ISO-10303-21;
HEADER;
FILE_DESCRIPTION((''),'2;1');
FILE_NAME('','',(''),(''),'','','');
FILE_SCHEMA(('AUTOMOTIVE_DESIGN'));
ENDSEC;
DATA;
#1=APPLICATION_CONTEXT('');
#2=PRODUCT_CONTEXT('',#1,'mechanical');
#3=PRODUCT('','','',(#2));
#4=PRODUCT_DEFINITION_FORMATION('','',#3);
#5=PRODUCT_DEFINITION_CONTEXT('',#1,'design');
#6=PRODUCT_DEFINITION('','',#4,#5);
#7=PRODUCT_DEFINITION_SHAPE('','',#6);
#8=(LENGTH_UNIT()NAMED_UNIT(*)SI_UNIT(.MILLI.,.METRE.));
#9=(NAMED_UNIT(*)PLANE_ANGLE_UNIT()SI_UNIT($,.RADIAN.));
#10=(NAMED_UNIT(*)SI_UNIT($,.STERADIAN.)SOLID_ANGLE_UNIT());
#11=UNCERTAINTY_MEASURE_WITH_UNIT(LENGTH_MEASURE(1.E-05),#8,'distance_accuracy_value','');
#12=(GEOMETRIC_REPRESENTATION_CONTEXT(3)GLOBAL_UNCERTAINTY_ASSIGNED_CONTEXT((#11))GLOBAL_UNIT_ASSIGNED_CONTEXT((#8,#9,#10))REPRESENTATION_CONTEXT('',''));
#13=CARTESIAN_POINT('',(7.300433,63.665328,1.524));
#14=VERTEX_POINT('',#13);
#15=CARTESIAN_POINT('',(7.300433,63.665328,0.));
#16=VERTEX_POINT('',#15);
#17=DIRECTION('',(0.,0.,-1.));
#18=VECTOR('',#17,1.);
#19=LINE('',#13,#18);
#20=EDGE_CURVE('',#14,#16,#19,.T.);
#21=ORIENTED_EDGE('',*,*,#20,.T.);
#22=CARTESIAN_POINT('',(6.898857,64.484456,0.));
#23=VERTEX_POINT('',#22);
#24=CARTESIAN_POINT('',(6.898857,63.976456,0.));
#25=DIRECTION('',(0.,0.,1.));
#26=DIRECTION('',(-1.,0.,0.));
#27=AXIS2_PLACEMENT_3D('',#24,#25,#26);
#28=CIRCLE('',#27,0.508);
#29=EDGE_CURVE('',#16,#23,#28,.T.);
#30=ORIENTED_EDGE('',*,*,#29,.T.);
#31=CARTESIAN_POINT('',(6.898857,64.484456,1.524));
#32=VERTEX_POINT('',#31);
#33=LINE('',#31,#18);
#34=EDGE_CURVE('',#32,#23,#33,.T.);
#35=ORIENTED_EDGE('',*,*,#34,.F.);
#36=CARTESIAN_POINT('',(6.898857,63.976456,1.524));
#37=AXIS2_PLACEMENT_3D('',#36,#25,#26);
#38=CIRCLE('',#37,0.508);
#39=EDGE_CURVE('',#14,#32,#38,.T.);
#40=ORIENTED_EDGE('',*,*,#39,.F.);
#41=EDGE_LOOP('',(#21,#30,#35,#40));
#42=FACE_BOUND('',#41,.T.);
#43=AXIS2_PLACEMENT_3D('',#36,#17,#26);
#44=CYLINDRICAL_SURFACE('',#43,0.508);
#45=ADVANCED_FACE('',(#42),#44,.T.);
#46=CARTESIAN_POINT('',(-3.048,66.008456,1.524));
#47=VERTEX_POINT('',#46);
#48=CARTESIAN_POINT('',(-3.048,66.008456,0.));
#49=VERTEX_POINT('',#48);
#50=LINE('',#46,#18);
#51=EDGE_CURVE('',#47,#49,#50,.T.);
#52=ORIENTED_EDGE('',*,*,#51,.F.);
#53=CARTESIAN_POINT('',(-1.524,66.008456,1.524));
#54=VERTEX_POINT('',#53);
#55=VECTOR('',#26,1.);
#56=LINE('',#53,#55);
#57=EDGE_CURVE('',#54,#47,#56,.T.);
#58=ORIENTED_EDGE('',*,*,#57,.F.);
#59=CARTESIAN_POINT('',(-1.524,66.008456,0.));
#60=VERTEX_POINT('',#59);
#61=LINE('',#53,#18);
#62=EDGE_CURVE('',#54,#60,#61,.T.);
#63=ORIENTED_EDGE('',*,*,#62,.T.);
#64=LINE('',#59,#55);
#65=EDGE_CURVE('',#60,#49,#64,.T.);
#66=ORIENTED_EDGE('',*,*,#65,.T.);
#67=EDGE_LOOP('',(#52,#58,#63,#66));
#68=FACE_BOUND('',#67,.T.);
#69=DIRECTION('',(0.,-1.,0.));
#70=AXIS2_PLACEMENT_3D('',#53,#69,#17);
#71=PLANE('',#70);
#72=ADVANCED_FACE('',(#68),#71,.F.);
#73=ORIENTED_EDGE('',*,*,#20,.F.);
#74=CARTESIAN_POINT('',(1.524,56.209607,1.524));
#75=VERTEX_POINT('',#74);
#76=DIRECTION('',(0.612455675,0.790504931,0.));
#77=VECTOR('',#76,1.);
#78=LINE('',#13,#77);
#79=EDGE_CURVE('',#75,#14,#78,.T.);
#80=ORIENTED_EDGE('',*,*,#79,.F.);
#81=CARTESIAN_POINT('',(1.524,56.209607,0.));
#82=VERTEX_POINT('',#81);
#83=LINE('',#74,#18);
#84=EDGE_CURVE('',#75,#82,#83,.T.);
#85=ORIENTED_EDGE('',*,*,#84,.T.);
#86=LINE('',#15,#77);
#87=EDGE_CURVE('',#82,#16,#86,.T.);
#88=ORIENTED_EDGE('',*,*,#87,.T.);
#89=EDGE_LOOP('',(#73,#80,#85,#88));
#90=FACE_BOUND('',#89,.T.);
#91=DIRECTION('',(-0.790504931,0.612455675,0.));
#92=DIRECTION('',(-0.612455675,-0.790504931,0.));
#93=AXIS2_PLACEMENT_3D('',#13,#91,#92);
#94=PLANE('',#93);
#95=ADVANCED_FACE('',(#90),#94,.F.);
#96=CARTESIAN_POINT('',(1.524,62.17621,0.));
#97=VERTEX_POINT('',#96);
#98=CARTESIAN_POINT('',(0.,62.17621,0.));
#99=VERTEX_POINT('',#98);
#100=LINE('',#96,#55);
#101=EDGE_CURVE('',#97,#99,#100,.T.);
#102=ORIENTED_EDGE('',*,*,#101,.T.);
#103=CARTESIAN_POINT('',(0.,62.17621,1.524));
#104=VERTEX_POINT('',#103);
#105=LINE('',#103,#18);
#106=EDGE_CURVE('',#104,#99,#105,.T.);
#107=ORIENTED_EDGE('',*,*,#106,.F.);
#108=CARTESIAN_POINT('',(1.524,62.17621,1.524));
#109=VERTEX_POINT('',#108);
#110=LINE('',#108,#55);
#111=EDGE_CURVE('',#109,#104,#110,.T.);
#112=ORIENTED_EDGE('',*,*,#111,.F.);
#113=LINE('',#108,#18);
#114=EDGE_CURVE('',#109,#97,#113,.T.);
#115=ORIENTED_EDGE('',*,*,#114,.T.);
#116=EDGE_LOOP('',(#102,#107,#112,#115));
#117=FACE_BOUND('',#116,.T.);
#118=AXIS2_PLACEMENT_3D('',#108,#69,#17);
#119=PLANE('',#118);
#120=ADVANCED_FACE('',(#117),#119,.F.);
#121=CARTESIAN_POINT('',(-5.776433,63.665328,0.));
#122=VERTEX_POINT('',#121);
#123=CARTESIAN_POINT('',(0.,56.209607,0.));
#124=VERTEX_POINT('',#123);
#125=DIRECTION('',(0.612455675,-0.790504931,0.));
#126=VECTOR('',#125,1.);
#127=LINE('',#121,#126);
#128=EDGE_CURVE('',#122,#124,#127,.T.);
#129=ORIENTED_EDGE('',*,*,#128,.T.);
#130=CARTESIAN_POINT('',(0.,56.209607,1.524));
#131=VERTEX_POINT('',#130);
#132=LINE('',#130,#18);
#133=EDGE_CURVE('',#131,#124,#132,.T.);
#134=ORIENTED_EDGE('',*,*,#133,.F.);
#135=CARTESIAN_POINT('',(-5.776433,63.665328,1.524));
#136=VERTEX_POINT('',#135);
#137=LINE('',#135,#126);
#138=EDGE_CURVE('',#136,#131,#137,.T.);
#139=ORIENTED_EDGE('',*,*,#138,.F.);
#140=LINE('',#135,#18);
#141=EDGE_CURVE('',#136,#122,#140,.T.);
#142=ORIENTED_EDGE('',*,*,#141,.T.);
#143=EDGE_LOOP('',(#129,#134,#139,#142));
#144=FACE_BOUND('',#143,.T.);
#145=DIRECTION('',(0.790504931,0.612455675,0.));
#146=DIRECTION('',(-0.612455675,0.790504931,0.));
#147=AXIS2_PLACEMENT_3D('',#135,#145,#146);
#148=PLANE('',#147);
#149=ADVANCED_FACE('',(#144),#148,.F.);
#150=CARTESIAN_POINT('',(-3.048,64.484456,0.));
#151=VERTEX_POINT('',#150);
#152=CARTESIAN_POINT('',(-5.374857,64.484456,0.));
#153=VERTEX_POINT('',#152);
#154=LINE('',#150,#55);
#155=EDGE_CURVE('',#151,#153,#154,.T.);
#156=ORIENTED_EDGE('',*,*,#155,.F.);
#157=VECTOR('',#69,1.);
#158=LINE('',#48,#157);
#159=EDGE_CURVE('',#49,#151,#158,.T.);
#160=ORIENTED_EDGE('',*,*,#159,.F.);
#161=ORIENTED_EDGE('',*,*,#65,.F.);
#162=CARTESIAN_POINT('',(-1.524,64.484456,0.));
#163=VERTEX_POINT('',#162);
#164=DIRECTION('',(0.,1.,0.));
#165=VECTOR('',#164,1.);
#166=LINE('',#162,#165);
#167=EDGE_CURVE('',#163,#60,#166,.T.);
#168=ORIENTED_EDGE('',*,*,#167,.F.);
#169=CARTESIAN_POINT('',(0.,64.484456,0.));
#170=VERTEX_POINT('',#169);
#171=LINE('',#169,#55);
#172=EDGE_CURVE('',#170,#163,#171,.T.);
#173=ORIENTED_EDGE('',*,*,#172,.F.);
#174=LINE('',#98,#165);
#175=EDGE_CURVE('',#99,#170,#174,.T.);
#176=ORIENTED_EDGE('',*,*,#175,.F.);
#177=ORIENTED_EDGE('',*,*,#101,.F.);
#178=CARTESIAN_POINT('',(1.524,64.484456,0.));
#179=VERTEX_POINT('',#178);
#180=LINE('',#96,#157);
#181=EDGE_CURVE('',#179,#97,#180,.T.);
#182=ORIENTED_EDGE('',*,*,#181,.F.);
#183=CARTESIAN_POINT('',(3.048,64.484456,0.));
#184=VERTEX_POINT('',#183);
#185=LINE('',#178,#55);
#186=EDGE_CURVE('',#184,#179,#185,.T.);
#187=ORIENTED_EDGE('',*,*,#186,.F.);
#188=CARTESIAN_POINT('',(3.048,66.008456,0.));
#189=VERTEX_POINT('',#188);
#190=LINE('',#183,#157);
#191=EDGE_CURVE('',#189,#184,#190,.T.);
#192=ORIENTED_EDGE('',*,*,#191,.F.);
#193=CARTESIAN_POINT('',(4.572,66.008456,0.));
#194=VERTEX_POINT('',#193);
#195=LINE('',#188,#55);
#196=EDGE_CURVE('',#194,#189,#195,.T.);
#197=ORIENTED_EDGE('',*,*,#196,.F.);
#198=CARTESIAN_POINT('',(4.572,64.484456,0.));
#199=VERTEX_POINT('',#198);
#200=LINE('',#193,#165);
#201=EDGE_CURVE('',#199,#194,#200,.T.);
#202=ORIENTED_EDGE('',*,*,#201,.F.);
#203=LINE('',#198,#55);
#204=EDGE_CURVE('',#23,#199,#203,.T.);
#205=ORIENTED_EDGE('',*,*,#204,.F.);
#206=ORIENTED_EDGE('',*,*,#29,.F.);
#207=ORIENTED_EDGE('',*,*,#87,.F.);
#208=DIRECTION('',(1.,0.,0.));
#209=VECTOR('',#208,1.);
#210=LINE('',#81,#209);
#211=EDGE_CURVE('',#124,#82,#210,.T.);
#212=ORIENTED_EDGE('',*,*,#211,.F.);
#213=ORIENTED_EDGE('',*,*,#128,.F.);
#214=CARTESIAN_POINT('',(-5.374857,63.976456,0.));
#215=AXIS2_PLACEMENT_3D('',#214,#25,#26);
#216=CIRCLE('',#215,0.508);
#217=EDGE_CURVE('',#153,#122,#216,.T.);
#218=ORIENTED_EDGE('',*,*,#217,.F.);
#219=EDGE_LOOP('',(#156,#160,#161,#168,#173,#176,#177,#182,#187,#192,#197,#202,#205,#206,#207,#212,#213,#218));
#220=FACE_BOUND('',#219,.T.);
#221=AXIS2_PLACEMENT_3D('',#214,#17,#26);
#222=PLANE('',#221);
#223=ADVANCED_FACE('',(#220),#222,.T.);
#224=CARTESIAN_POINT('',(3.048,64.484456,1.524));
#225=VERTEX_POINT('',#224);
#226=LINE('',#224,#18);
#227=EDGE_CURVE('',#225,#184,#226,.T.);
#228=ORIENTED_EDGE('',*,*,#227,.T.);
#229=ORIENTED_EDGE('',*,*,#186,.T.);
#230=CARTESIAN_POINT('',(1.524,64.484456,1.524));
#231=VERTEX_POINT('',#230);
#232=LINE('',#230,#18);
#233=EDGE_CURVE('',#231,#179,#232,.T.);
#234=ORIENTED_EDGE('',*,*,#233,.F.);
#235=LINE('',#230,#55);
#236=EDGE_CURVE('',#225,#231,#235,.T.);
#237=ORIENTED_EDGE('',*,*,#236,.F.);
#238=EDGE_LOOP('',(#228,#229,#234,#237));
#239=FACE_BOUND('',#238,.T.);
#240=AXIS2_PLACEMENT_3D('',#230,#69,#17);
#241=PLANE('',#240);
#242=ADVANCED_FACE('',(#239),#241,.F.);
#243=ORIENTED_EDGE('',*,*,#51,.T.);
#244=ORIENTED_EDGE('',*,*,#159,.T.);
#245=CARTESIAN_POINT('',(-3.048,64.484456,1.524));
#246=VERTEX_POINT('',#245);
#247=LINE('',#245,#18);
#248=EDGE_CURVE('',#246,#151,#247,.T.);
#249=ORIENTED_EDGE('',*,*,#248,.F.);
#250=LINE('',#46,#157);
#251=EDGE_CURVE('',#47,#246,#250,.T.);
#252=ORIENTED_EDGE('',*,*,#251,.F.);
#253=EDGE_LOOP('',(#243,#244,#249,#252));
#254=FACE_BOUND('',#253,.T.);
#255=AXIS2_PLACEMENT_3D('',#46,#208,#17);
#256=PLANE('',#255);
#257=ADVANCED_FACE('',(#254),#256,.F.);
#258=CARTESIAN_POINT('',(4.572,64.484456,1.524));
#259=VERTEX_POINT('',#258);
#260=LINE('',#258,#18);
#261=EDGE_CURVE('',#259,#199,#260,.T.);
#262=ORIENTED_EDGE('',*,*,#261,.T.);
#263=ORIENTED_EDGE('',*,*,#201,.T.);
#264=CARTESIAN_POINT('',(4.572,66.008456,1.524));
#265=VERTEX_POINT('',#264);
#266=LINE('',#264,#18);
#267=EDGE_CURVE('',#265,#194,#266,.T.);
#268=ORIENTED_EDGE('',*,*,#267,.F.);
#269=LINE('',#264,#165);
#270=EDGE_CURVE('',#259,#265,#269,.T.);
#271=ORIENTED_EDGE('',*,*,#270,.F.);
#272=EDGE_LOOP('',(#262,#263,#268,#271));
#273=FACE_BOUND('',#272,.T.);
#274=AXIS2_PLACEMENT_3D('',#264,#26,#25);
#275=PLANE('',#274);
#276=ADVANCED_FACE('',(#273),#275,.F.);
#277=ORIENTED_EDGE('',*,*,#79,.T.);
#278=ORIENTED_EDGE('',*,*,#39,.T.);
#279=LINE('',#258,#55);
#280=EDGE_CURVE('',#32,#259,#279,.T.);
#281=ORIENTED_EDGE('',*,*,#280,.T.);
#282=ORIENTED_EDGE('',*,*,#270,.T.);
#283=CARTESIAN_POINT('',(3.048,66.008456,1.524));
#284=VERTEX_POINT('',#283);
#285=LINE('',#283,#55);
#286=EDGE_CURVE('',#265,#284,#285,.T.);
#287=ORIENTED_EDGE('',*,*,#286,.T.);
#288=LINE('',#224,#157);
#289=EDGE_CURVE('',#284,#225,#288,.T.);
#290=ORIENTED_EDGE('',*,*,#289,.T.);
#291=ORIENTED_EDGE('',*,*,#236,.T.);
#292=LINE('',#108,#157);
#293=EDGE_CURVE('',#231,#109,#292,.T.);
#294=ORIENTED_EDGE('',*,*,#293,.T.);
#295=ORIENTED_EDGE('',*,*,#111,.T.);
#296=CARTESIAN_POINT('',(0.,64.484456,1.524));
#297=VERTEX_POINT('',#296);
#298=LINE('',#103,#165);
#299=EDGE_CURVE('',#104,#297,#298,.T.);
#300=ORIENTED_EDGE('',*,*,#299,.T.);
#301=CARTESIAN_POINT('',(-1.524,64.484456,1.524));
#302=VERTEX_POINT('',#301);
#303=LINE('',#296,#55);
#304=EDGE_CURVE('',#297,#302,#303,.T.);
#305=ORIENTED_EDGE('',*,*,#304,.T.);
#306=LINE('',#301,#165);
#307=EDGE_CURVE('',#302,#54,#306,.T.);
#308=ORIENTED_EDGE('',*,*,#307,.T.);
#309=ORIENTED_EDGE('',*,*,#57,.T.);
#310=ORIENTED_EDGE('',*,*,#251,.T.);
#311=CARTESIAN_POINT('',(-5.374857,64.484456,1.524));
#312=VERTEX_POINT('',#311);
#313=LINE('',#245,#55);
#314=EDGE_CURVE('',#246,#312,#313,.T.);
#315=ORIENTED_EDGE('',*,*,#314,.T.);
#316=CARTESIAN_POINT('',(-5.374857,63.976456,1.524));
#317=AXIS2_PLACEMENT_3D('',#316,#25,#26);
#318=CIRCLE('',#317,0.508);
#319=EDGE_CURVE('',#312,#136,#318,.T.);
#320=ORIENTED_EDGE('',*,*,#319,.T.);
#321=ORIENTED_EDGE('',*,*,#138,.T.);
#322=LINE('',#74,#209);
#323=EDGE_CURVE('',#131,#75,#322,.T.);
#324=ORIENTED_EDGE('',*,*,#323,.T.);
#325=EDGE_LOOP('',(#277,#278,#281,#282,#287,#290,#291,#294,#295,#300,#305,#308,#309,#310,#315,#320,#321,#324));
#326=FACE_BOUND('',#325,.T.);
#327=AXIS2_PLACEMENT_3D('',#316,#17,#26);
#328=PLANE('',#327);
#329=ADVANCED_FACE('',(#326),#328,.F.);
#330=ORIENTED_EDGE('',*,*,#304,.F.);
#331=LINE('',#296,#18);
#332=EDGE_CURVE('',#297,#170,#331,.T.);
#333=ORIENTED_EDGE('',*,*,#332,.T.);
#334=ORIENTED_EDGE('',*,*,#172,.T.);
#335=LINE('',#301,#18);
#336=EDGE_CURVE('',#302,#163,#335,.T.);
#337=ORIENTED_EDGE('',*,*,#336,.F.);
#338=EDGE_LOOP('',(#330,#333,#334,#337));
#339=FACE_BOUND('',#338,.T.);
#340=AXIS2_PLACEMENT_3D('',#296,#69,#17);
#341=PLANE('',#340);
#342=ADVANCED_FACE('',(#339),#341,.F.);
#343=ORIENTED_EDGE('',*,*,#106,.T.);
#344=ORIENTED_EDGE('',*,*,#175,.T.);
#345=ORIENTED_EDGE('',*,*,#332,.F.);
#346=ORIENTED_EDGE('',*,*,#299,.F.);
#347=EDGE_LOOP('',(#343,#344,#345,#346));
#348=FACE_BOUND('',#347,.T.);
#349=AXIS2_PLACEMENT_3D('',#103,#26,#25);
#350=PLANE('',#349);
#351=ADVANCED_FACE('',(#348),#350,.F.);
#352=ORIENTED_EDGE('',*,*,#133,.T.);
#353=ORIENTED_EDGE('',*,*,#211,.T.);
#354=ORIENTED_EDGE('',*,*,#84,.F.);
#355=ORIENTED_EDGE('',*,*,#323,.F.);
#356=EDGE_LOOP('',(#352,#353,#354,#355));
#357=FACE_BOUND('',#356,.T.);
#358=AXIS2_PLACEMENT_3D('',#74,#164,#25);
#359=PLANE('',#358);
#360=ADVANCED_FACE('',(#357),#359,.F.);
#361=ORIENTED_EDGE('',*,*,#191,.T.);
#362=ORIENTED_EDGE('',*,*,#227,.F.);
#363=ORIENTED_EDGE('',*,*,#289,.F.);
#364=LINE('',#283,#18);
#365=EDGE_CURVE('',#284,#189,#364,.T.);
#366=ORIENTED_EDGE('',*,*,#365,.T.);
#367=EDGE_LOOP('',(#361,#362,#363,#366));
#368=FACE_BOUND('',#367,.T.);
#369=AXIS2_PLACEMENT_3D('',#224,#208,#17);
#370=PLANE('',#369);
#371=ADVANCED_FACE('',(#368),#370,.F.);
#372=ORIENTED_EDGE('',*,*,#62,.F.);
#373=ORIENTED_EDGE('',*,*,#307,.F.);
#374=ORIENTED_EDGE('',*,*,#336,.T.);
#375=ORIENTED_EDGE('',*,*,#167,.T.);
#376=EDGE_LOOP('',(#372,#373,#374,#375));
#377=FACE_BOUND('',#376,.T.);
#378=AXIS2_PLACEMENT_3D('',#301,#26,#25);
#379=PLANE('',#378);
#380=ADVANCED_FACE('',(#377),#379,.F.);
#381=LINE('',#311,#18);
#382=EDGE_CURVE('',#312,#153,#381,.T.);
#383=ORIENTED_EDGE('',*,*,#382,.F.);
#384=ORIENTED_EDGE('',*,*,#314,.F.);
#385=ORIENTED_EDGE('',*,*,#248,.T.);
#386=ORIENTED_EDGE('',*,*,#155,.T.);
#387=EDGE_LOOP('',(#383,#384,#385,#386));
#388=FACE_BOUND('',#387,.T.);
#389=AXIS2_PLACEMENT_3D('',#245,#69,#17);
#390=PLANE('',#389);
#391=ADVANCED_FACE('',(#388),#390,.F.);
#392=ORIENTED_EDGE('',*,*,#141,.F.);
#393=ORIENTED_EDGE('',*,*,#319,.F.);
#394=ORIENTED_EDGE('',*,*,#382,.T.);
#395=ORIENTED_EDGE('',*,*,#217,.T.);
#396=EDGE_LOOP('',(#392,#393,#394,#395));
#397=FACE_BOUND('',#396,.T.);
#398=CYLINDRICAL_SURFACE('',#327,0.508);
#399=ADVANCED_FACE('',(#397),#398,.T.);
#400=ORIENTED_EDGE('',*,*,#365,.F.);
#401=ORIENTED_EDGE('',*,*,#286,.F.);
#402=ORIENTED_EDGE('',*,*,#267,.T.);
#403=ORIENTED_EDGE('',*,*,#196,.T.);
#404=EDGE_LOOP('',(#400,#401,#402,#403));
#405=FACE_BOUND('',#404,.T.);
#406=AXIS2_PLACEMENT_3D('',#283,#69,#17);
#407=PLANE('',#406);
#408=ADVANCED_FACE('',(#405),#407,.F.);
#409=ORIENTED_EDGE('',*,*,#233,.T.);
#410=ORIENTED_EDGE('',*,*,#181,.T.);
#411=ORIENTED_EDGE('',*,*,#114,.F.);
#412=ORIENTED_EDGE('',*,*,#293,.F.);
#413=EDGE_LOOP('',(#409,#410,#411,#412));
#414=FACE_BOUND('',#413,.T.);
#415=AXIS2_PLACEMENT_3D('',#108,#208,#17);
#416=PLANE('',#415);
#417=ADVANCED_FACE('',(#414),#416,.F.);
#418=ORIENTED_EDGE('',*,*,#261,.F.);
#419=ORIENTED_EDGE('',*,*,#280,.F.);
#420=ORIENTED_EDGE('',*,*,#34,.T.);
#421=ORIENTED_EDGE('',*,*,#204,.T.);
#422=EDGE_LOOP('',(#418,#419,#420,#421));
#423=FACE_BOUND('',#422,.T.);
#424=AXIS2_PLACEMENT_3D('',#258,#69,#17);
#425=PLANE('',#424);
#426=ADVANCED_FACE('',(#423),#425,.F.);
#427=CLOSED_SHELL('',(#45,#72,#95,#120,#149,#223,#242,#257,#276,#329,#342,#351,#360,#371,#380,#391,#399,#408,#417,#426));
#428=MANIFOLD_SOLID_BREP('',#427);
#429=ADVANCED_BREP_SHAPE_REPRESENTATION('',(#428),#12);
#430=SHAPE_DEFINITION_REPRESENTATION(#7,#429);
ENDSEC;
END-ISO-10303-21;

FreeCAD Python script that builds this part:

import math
import FreeCAD as App
import Part
import Sketcher
from FreeCAD import Vector
Q = App.Units.Quantity

doc = App.newDocument("Part")
body = doc.addObject("PartDesign::Body", "Body")

# Sketch on XY plane
sketch1 = doc.addObject("Sketcher::SketchObject", "Sketch")
body.addObject(sketch1)
sketch1.AttachmentSupport = (doc.XY_Plane, [""])
sketch1.MapMode = "FlatFace"
sketch1.addGeometry([
    Part.LineSegment(Vector(1.5, 64.5, 0), Vector(1.5, 62.2, 0)),  # 0
    Part.LineSegment(Vector(1.5, 62.2, 0), Vector(0, 62.2, 0)),  # 1
    Part.LineSegment(Vector(0, 62.2, 0), Vector(0, 64.5, 0)),  # 2
    Part.LineSegment(Vector(0, 64.5, 0), Vector(-1.5, 64.5, 0)),  # 3
    Part.LineSegment(Vector(-1.5, 64.5, 0), Vector(-1.5, 66, 0)),  # 4
    Part.LineSegment(Vector(-1.5, 66, 0), Vector(-3, 66, 0)),  # 5
    Part.LineSegment(Vector(-3, 66, 0), Vector(-3, 64.5, 0)),  # 6
    Part.LineSegment(Vector(-3, 64.5, 0), Vector(-5.4, 64.5, 0)),  # 7
    Part.ArcOfCircle(Part.Circle(Vector(-5.4, 64, 0), Vector(0, 0, 1), 0.5), math.radians(90), math.radians(218)),  # 8
    Part.LineSegment(Vector(-5.8, 63.7, 0), Vector(0, 56.2, 0)),  # 9
    Part.LineSegment(Vector(0, 56.2, 0), Vector(1.5, 56.2, 0)),  # 10
    Part.LineSegment(Vector(1.5, 56.2, 0), Vector(7.3, 63.7, 0)),  # 11
    Part.ArcOfCircle(Part.Circle(Vector(6.9, 64, 0), Vector(0, 0, 1), 0.5), math.radians(-38), math.radians(90)),  # 12
    Part.LineSegment(Vector(6.9, 64.5, 0), Vector(4.6, 64.5, 0)),  # 13
    Part.LineSegment(Vector(4.6, 64.5, 0), Vector(4.6, 66, 0)),  # 14
    Part.LineSegment(Vector(4.6, 66, 0), Vector(3, 66, 0)),  # 15
    Part.LineSegment(Vector(3, 66, 0), Vector(3, 64.5, 0)),  # 16
    Part.LineSegment(Vector(3, 64.5, 0), Vector(1.5, 64.5, 0)),  # 17
], False)
sketch1.addConstraint([
    Sketcher.Constraint("Coincident", 0, 2, 1, 1),
    Sketcher.Constraint("Coincident", 1, 2, 2, 1),
    Sketcher.Constraint("Coincident", 2, 2, 3, 1),
    Sketcher.Constraint("Coincident", 3, 2, 4, 1),
    Sketcher.Constraint("Coincident", 4, 2, 5, 1),
    Sketcher.Constraint("Coincident", 5, 2, 6, 1),
    Sketcher.Constraint("Coincident", 6, 2, 7, 1),
    Sketcher.Constraint("Tangent", 7, 2, 8, 1),
    Sketcher.Constraint("Tangent", 8, 2, 9, 1),
    Sketcher.Constraint("Coincident", 9, 2, 10, 1),
    Sketcher.Constraint("Coincident", 10, 2, 11, 1),
    Sketcher.Constraint("Tangent", 11, 2, 12, 1),
    Sketcher.Constraint("Tangent", 12, 2, 13, 1),
    Sketcher.Constraint("Coincident", 13, 2, 14, 1),
    Sketcher.Constraint("Coincident", 14, 2, 15, 1),
    Sketcher.Constraint("Coincident", 15, 2, 16, 1),
    Sketcher.Constraint("Coincident", 16, 2, 17, 1),
    Sketcher.Constraint("Coincident", 17, 2, 0, 1),
    Sketcher.Constraint("Vertical", 0),
    Sketcher.Constraint("Horizontal", 1),
    Sketcher.Constraint("Vertical", 2),
    Sketcher.Constraint("Horizontal", 3),
    Sketcher.Constraint("Vertical", 4),
    Sketcher.Constraint("Horizontal", 5),
    Sketcher.Constraint("Vertical", 6),
    Sketcher.Constraint("Horizontal", 7),
    Sketcher.Constraint("Horizontal", 10),
    Sketcher.Constraint("Horizontal", 13),
    Sketcher.Constraint("Vertical", 14),
    Sketcher.Constraint("Horizontal", 15),
    Sketcher.Constraint("Vertical", 16),
    Sketcher.Constraint("Horizontal", 17),
    Sketcher.Constraint("Equal", 8, 12),
    Sketcher.Constraint("Symmetric", 5, 2, 15, 2, -2),
    Sketcher.Constraint("Symmetric", 3, 2, 17, 2, -2),
    Sketcher.Constraint("PointOnObject", 1, 2, -2),
    Sketcher.Constraint("PointOnObject", 9, 2, -2),
    Sketcher.Constraint("Horizontal", 8, 3, 12, 3),
    Sketcher.Constraint("Horizontal", 3, 2, 6, 2),
    Sketcher.Constraint("Horizontal", 8, 2, 11, 2),
    Sketcher.Constraint("Vertical", 0, 2, 10, 2),
    Sketcher.Constraint("Equal", 3, 5),
    Sketcher.Constraint("Equal", 7, 13),
    Sketcher.Constraint("Equal", 17, 4),
    Sketcher.Constraint("Radius", 8, Q("0.02 in")),
    Sketcher.Constraint("DistanceX", 1, 2, 1, 1, Q("0.06 in")),
    Sketcher.Constraint("DistanceX", 7, 2, 7, 1, Q("2.326857 mm")),
    Sketcher.Constraint("DistanceY", 0, 2, 0, 1, Q("2.308246 mm")),
    Sketcher.Constraint("DistanceY", -1, 1, 0, 2, Q("62.17621 mm")),
    Sketcher.Constraint("DistanceY", -1, 1, 8, 2, Q("63.665328 mm")),
])
pad1 = doc.addObject("PartDesign::Pad", "Pad")
body.addObject(pad1)
pad1.Profile = sketch1
pad1.Length = Q("0.06 in")

doc.recompute()
